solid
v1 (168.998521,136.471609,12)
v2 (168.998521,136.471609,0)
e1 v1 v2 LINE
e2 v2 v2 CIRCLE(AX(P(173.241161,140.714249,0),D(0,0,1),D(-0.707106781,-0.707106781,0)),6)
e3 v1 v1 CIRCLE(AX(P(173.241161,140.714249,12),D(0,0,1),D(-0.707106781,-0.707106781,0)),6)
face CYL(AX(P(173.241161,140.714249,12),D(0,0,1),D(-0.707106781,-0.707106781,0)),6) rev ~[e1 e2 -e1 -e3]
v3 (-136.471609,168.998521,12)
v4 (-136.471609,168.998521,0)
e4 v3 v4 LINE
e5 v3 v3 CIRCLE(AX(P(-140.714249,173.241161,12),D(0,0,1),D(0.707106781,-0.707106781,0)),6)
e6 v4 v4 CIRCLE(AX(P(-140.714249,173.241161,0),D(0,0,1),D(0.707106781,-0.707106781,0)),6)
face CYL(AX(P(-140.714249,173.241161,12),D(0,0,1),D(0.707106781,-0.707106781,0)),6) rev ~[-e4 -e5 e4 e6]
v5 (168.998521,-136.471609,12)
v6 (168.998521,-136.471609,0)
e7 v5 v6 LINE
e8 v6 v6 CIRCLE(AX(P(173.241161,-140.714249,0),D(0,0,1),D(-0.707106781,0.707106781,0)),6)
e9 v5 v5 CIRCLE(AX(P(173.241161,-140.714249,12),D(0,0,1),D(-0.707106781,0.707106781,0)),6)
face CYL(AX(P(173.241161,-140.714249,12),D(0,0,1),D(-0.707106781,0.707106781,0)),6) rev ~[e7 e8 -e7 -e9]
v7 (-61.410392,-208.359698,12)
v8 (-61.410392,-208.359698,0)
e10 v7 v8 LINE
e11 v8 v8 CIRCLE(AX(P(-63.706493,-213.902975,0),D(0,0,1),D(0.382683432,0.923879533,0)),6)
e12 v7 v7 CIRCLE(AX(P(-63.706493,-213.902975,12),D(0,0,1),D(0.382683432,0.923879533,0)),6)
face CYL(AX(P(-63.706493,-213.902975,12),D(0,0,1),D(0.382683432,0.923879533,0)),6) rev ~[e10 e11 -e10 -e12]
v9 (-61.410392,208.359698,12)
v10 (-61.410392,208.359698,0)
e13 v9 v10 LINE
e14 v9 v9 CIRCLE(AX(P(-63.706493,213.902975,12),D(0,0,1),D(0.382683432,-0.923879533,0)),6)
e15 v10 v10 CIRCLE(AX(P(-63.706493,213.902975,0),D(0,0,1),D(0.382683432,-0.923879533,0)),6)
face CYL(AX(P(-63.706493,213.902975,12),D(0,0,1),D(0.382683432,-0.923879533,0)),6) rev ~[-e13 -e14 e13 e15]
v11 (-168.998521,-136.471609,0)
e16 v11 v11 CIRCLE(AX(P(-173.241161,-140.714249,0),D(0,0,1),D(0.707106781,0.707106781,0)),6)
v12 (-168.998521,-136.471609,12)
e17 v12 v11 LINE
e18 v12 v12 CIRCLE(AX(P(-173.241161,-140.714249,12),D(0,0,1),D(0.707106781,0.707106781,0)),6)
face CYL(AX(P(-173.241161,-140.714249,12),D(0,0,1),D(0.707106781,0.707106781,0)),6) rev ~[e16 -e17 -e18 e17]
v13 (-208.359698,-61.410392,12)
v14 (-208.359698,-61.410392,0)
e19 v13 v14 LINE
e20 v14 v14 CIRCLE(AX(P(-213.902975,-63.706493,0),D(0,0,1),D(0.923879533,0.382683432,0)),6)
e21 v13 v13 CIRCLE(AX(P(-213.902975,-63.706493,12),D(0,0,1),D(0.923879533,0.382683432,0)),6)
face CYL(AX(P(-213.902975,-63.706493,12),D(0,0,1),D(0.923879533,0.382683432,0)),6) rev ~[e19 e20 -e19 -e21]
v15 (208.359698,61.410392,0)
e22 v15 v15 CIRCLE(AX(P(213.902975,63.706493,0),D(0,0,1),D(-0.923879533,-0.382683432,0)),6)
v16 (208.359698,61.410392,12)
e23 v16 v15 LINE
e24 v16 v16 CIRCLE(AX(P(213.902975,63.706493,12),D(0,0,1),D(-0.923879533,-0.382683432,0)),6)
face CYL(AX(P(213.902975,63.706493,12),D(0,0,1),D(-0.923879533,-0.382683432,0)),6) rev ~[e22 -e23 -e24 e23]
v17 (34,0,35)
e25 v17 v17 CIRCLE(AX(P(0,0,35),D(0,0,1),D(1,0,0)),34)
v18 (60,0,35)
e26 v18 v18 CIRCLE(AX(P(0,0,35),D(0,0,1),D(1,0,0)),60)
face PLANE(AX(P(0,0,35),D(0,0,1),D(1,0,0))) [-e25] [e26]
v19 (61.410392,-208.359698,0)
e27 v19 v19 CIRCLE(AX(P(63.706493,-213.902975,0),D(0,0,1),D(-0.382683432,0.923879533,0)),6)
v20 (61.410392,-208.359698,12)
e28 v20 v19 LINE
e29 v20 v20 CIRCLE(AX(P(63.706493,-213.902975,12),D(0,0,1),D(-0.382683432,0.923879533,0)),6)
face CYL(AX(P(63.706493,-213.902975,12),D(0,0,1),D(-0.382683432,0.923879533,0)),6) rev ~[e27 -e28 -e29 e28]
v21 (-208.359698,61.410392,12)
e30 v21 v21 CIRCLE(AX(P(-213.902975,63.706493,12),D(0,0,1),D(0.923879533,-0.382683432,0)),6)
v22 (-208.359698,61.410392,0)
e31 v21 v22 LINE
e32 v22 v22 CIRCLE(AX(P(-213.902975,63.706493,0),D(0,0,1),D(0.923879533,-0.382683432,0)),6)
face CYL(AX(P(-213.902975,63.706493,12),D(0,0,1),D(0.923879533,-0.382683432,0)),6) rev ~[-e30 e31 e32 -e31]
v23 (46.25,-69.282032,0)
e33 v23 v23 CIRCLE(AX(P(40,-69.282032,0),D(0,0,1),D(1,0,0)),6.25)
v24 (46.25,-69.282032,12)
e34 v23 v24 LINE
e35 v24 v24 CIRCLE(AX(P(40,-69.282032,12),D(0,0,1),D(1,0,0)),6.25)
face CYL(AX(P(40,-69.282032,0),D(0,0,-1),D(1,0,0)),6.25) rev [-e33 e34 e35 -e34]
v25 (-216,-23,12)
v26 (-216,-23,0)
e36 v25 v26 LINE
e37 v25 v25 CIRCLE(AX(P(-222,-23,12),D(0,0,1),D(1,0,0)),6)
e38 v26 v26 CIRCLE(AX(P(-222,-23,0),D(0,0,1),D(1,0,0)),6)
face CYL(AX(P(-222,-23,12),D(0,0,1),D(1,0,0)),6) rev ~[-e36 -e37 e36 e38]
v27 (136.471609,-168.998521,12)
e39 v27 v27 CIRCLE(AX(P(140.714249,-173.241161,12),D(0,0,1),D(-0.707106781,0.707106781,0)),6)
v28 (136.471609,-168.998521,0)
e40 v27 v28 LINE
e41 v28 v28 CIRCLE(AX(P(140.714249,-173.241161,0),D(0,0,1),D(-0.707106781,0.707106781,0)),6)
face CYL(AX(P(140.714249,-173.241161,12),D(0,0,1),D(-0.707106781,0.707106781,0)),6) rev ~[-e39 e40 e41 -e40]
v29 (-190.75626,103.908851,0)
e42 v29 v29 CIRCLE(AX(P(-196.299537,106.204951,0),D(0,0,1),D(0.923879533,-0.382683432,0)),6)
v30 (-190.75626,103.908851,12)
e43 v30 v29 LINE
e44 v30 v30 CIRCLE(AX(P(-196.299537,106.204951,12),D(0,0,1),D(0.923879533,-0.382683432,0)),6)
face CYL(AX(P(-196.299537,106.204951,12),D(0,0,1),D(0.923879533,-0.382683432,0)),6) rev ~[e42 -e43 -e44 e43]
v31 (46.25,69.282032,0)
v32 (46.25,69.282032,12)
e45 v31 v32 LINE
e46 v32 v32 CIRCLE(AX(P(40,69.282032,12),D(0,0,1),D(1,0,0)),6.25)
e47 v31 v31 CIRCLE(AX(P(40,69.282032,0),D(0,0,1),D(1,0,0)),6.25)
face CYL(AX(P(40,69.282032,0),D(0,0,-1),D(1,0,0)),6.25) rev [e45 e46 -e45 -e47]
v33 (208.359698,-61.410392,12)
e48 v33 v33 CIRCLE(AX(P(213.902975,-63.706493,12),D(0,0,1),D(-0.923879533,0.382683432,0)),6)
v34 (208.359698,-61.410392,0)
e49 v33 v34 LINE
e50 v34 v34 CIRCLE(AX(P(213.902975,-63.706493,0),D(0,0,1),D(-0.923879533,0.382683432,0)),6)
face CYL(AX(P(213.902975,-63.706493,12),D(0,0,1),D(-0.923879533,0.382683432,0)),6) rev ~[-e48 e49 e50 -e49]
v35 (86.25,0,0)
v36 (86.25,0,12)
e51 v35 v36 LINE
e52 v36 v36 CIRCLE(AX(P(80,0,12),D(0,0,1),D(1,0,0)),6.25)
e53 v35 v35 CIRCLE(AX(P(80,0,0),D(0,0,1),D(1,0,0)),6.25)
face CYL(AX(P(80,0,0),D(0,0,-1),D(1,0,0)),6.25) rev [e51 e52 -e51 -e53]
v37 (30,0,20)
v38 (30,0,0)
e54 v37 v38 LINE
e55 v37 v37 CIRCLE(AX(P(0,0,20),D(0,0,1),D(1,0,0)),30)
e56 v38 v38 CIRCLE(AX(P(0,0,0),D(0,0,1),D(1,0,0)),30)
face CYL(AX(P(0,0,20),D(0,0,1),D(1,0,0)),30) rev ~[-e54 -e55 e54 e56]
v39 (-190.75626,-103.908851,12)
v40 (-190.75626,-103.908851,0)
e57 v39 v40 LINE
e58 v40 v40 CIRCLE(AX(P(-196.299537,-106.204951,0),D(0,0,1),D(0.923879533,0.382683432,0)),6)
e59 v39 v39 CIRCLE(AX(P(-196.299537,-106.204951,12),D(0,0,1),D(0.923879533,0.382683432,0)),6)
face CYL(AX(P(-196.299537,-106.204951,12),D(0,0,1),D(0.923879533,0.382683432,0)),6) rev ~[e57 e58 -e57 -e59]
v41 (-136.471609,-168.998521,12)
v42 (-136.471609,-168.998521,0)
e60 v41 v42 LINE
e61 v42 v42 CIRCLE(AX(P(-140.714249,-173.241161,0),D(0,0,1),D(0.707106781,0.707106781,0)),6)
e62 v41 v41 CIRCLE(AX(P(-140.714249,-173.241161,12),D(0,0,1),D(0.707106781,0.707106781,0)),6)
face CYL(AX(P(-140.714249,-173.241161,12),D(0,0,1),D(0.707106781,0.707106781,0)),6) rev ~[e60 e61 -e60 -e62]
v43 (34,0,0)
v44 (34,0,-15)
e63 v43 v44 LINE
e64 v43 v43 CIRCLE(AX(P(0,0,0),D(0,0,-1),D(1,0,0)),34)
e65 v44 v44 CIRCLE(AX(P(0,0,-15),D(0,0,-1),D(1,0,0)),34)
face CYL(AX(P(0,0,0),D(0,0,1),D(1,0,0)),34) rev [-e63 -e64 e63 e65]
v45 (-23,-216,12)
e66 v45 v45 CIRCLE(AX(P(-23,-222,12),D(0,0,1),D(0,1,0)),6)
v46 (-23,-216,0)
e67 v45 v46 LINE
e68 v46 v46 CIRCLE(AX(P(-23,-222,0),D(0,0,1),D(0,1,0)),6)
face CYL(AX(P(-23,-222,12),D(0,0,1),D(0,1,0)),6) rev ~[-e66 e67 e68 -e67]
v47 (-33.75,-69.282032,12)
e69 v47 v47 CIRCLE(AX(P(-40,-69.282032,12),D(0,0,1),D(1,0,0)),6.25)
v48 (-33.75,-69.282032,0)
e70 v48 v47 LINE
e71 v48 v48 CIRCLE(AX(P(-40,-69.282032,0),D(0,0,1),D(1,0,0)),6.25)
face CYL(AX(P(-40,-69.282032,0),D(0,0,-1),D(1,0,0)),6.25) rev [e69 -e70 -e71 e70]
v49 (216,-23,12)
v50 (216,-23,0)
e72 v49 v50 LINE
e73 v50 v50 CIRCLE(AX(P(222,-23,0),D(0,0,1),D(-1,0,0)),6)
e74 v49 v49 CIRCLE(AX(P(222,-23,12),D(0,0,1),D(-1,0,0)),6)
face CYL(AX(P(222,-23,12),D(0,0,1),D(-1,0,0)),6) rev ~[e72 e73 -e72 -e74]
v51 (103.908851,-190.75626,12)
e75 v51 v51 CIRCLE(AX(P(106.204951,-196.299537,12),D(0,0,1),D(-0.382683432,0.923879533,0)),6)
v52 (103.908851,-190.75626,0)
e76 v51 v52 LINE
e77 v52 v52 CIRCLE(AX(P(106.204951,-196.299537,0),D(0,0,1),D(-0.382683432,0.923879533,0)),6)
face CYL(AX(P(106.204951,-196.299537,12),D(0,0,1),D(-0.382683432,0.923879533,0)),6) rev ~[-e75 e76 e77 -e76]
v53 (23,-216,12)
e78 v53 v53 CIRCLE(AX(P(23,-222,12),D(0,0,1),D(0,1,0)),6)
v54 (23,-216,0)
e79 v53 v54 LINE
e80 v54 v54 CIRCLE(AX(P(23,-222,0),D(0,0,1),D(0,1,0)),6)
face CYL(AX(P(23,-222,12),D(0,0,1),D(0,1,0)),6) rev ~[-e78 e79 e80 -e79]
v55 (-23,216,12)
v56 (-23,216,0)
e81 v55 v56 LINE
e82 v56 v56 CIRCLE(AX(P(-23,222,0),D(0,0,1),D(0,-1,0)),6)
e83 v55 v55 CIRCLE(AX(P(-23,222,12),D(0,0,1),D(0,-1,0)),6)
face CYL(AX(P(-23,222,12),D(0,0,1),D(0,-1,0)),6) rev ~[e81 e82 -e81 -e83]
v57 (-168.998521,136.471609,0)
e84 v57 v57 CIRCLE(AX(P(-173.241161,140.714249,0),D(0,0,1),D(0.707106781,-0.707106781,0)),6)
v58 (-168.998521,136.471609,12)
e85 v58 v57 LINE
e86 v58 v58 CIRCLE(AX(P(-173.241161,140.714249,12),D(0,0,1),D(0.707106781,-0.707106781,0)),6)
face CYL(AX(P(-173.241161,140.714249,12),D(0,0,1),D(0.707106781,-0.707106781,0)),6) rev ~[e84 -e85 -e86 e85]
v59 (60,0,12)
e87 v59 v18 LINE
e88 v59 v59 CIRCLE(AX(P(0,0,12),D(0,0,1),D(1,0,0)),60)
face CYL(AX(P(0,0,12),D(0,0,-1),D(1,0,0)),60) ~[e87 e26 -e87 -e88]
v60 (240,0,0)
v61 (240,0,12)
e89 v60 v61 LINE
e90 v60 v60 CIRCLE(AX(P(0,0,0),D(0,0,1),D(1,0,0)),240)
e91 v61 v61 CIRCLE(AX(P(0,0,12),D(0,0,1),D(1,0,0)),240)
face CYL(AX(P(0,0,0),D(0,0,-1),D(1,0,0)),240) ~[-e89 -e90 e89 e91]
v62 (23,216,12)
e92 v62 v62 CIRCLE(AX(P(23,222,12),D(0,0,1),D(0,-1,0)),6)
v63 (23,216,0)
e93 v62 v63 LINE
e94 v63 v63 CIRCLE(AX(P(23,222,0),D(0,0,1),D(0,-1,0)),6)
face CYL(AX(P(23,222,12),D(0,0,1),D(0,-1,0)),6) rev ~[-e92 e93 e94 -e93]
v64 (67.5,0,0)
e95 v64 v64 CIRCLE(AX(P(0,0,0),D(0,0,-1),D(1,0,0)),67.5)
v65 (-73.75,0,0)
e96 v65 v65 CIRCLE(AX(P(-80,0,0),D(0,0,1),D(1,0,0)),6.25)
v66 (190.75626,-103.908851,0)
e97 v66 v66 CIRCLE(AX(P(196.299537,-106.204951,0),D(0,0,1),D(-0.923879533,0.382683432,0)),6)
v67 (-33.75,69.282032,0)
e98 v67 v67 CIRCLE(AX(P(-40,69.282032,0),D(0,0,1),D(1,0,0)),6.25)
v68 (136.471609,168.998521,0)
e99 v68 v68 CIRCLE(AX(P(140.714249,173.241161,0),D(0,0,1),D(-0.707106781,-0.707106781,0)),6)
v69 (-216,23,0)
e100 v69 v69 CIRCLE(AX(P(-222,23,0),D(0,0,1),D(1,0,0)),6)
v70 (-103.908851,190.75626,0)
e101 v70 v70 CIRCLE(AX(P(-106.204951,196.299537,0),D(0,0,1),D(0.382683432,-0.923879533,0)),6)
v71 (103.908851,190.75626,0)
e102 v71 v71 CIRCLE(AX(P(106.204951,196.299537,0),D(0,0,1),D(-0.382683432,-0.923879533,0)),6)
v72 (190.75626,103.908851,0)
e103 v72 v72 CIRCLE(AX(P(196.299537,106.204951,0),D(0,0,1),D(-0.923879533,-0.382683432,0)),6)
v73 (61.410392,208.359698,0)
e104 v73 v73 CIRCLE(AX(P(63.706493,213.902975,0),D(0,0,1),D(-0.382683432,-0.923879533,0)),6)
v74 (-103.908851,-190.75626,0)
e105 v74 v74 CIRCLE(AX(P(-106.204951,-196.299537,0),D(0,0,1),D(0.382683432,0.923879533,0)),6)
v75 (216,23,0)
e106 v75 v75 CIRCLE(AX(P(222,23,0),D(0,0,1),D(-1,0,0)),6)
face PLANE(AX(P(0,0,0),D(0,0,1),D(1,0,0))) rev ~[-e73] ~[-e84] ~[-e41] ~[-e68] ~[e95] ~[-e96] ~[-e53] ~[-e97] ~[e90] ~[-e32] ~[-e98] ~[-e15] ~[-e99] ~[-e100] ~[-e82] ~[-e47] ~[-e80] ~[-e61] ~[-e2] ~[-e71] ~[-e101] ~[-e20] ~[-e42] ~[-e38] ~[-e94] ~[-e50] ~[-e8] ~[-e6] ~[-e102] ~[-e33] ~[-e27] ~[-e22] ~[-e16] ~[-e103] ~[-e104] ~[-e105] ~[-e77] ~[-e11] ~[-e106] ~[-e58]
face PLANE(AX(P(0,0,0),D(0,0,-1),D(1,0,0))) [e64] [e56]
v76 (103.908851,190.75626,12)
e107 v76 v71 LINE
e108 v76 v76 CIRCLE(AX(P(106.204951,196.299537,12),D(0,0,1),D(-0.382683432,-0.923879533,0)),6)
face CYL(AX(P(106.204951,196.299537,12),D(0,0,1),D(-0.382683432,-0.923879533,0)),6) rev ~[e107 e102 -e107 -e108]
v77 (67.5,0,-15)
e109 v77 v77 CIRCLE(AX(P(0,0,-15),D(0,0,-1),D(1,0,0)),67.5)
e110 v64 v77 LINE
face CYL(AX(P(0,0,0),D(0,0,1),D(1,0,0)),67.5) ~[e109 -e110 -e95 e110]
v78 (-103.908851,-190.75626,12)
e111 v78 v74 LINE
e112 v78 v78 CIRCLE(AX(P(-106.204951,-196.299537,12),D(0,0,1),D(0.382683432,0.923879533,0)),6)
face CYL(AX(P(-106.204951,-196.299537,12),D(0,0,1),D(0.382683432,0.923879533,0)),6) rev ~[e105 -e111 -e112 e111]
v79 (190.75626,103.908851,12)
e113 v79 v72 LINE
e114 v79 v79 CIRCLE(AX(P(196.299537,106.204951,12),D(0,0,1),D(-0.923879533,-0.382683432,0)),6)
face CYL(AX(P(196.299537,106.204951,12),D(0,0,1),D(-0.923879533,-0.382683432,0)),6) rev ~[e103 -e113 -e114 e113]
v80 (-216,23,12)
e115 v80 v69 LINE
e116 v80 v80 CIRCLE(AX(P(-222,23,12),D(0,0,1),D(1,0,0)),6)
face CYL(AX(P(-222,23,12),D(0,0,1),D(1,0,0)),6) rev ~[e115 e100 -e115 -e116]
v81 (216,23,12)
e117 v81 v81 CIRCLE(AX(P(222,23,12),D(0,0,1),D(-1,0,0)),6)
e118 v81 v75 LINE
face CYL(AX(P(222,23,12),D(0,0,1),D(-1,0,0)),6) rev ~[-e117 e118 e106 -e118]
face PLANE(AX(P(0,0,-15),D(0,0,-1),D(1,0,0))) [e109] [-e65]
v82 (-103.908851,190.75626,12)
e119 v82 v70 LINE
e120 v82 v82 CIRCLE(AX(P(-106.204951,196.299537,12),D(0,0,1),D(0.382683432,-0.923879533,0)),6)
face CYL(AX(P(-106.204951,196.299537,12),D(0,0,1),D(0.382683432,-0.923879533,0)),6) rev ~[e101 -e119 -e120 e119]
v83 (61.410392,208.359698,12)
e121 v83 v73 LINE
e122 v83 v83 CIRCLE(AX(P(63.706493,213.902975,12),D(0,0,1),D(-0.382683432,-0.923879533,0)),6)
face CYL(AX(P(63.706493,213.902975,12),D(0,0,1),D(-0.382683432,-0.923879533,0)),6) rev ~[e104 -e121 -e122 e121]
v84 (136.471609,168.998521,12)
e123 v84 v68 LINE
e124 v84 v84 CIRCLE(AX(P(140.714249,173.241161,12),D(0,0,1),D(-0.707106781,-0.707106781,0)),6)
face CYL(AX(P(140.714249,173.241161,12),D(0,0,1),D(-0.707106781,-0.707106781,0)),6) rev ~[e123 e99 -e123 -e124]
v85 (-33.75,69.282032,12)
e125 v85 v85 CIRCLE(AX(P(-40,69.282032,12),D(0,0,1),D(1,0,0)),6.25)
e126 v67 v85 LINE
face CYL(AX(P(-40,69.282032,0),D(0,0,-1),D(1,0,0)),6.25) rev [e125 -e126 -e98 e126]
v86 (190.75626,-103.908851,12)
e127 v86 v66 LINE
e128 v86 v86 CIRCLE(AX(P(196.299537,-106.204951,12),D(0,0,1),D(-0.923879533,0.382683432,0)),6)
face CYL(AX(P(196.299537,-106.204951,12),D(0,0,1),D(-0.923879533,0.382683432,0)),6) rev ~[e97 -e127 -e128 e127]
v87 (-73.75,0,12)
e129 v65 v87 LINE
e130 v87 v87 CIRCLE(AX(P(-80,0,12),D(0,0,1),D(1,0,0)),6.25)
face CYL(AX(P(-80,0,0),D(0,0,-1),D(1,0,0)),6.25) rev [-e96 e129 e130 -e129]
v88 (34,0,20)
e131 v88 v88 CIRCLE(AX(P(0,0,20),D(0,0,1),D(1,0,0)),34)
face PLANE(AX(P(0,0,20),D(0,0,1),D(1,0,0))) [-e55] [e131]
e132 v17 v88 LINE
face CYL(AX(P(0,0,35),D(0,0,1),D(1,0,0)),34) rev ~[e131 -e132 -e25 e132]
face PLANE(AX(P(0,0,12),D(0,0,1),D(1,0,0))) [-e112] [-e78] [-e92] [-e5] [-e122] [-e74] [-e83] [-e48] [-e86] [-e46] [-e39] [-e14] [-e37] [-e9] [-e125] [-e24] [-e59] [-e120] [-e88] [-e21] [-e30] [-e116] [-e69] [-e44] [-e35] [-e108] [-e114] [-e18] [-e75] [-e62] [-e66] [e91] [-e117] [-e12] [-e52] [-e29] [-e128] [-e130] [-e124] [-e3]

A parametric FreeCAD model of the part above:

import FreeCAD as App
import Part
import Sketcher

V = App.Vector

doc = App.newDocument("Part")
body = doc.addObject("PartDesign::Body", "Body")

sketch1 = body.newObject("Sketcher::SketchObject", "Sketch")
sketch1.AttachmentSupport = (doc.getObject("XY_Plane"), [""])
sketch1.MapMode = "FlatFace"
sketch1.addGeometry(Part.Circle(V(0, 0, 0), V(0, 0, 1), 240), False)
sketch1.addGeometry(Part.Circle(V(-40, -69.282032, 0), V(0, 0, 1), 6.25), False)
sketch1.addGeometry(Part.Circle(V(40, -69.282032, 0), V(0, 0, 1), 6.25), False)
sketch1.addGeometry(Part.Circle(V(-80, 0, 0), V(0, 0, 1), 6.25), False)
sketch1.addGeometry(Part.Circle(V(-40, 69.282032, 0), V(0, 0, 1), 6.25), False)
sketch1.addGeometry(Part.Circle(V(80, 0, 0), V(0, 0, 1), 6.25), False)
sketch1.addGeometry(Part.Circle(V(40, 69.282032, 0), V(0, 0, 1), 6.25), False)
sketch1.addConstraint(Sketcher.Constraint("Coincident", 0, 3, -1, 1))
sketch1.addConstraint(Sketcher.Constraint("Equal", 1, 2))
sketch1.addConstraint(Sketcher.Constraint("Equal", 2, 3))
sketch1.addConstraint(Sketcher.Constraint("Equal", 3, 4))
sketch1.addConstraint(Sketcher.Constraint("Equal", 4, 5))
sketch1.addConstraint(Sketcher.Constraint("Equal", 5, 6))
sketch1.addConstraint(Sketcher.Constraint("Symmetric", 2, 3, 4, 3, -1, 1))
sketch1.addConstraint(Sketcher.Constraint("Symmetric", 3, 3, 5, 3, -1, 1))
sketch1.addConstraint(Sketcher.Constraint("Symmetric", 1, 3, 6, 3, -1, 1))
sketch1.addConstraint(Sketcher.Constraint("Symmetric", 1, 3, 2, 3, -2))
sketch1.addConstraint(Sketcher.Constraint("PointOnObject", 3, 3, -1))
sketch1.addConstraint(Sketcher.Constraint("Diameter", 0, 480.0))
sketch1.addConstraint(Sketcher.Constraint("Diameter", 1, 12.5))
sketch1.addConstraint(Sketcher.Constraint("DistanceX", 1, 3, -1, 1, 40.0))
sketch1.addConstraint(Sketcher.Constraint("DistanceX", 3, 3, -1, 1, 80.0))
sketch1.addConstraint(Sketcher.Constraint("DistanceY", 1, 3, -1, 1, 69.282032))
pad1 = body.newObject("PartDesign::Pad", "Pad")
pad1.Profile = sketch1
pad1.Length = 12

sketch2 = body.newObject("Sketcher::SketchObject", "Sketch001")
sketch2.AttachmentSupport = (doc.getObject("XY_Plane"), [""])
sketch2.MapMode = "FlatFace"
sketch2.AttachmentOffset = App.Placement(V(0, 0, 12), App.Rotation())
sketch2.addGeometry(Part.Circle(V(0, 0, 0), V(0, 0, 1), 60), False)
sketch2.addConstraint(Sketcher.Constraint("Coincident", 0, 3, -1, 1))
sketch2.addConstraint(Sketcher.Constraint("Diameter", 0, 120.0))
pad2 = body.newObject("PartDesign::Pad", "Pad001")
pad2.Profile = sketch2
pad2.Length = 23

sketch3 = body.newObject("Sketcher::SketchObject", "Sketch002")
sketch3.AttachmentSupport = (doc.getObject("XY_Plane"), [""])
sketch3.MapMode = "FlatFace"
sketch3.addGeometry(Part.Circle(V(0, 0, 0), V(0, 0, 1), 67.5), False)
sketch3.addConstraint(Sketcher.Constraint("Coincident", 0, 3, -1, 1))
sketch3.addConstraint(Sketcher.Constraint("Diameter", 0, 135.0))
pad3 = body.newObject("PartDesign::Pad", "Pad002")
pad3.Profile = sketch3
pad3.Length = 15
pad3.Reversed = True

sketch4 = body.newObject("Sketcher::SketchObject", "Sketch003")
sketch4.AttachmentSupport = (doc.getObject("XY_Plane"), [""])
sketch4.MapMode = "FlatFace"
sketch4.AttachmentOffset = App.Placement(V(0, 0, 35), App.Rotation())
sketch4.addGeometry(Part.Circle(V(0, 0, 0), V(0, 0, 1), 34), False)
sketch4.addConstraint(Sketcher.Constraint("Coincident", 0, 3, -1, 1))
sketch4.addConstraint(Sketcher.Constraint("Diameter", 0, 68.0))
pocket1 = body.newObject("PartDesign::Pocket", "Pocket")
pocket1.Profile = sketch4
pocket1.Length = 15

sketch5 = body.newObject("Sketcher::SketchObject", "Sketch004")
sketch5.AttachmentSupport = (doc.getObject("XY_Plane"), [""])
sketch5.MapMode = "FlatFace"
sketch5.AttachmentOffset = App.Placement(V(0, 0, 20), App.Rotation())
sketch5.addGeometry(Part.Circle(V(0, 0, 0), V(0, 0, 1), 30), False)
sketch5.addConstraint(Sketcher.Constraint("Coincident", 0, 3, -1, 1))
sketch5.addConstraint(Sketcher.Constraint("Diameter", 0, 60.0))
pocket2 = body.newObject("PartDesign::Pocket", "Pocket001")
pocket2.Profile = sketch5
pocket2.Length = 20

sketch6 = body.newObject("Sketcher::SketchObject", "Sketch005")
sketch6.AttachmentSupport = (doc.getObject("XY_Plane"), [""])
sketch6.MapMode = "FlatFace"
sketch6.addGeometry(Part.Circle(V(0, 0, 0), V(0, 0, 1), 34), False)
sketch6.addConstraint(Sketcher.Constraint("Coincident", 0, 3, -1, 1))
sketch6.addConstraint(Sketcher.Constraint("Diameter", 0, 68.0))
pocket3 = body.newObject("PartDesign::Pocket", "Pocket002")
pocket3.Profile = sketch6
pocket3.Length = 15

sketch7 = body.newObject("Sketcher::SketchObject", "Sketch006")
sketch7.AttachmentSupport = (doc.getObject("XY_Plane"), [""])
sketch7.MapMode = "FlatFace"
sketch7.AttachmentOffset = App.Placement(V(0, 0, 12), App.Rotation())
sketch7.addGeometry(Part.Circle(V(-222, 23, 0), V(0, 0, 1), 6), False)
sketch7.addGeometry(Part.Circle(V(-222, -23, 0), V(0, 0, 1), 6), False)
sketch7.addConstraint(Sketcher.Constraint("Equal", 0, 1))
sketch7.addConstraint(Sketcher.Constraint("Symmetric", 0, 3, 1, 3, -1))
sketch7.addConstraint(Sketcher.Constraint("Diameter", 0, 12.0))
sketch7.addConstraint(Sketcher.Constraint("DistanceX", 0, 3, -1, 1, 222.0))
sketch7.addConstraint(Sketcher.Constraint("DistanceY", -1, 1, 0, 3, 23.0))
pocket4 = body.newObject("PartDesign::Pocket", "Pocket003")
pocket4.Profile = sketch7
pocket4.Length = 12
doc.recompute()

polarpattern = body.newObject("PartDesign::PolarPattern", "PolarPattern")
polarpattern.Originals = [pocket4]
polarpattern.Axis = (doc.getObject("Z_Axis"), [""])
polarpattern.Angle = 360
polarpattern.Occurrences = 16
body.Tip = polarpattern

doc.recompute()
